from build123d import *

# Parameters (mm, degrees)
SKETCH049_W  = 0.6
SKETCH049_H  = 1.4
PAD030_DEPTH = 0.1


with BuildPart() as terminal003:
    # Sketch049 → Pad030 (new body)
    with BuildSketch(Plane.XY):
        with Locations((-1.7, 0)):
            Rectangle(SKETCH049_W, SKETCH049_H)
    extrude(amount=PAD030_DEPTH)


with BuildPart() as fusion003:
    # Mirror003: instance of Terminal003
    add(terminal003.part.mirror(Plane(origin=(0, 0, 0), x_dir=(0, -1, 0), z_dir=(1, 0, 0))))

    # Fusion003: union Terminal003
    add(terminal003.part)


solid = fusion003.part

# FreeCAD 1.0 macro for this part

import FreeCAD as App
import Part
import Sketcher
from FreeCAD import Vector
Q = App.Units.Quantity

doc = App.newDocument("Part")
body = doc.addObject("PartDesign::Body", "Body")

# Sketch on XY plane
sketch1 = body.newObject("Sketcher::SketchObject", "Sketch")
sketch1.AttachmentSupport = (doc.getObject("XY_Plane"), [""])
sketch1.MapMode = "FlatFace"
sketch1.addGeometry([
    Part.LineSegment(Vector(-2, 0.7, 0), Vector(-2, -0.7, 0)),
    Part.LineSegment(Vector(-2, -0.7, 0), Vector(-1.4, -0.7, 0)),
    Part.LineSegment(Vector(-1.4, -0.7, 0), Vector(-1.4, 0.7, 0)),
    Part.LineSegment(Vector(-1.4, 0.7, 0), Vector(-2, 0.7, 0)),
], False)
sketch1.addConstraint([
    Sketcher.Constraint("Coincident", 0, 2, 1, 1),
    Sketcher.Constraint("Coincident", 1, 2, 2, 1),
    Sketcher.Constraint("Coincident", 2, 2, 3, 1),
    Sketcher.Constraint("Coincident", 3, 2, 0, 1),
    Sketcher.Constraint("Vertical", 0),
    Sketcher.Constraint("Horizontal", 1),
    Sketcher.Constraint("Vertical", 2),
    Sketcher.Constraint("Horizontal", 3),
    Sketcher.Constraint("DistanceX", 1, 1, 1, 2, Q("0.6 mm")),
    Sketcher.Constraint("DistanceY", 0, 2, 0, 1, Q("1.4 mm")),
    Sketcher.Constraint("DistanceX", 0, 2, -1, 1, Q("2 mm")),
    Sketcher.Constraint("DistanceY", 0, 2, -1, 1, Q("0.7 mm")),
])
pad1 = body.newObject("PartDesign::Pad", "Pad")
pad1.Profile = sketch1
pad1.Length = 0.1
body2 = doc.addObject("PartDesign::Body", "Body001")
body2.AllowCompound = True
doc.recompute()

mirroring = doc.addObject("Part::Mirroring", "Mirroring")
mirroring.Source = body
mirroring.Base = Vector(0, 0, 0)
mirroring.Normal = Vector(1, 0, 0)
body2.BaseFeature = mirroring
doc.recompute()

boolean = body2.newObject("PartDesign::Boolean", "Boolean")
boolean.Type = "Fuse"
boolean.addObjects([body])
mirroring.Visibility = False

doc.recompute()
